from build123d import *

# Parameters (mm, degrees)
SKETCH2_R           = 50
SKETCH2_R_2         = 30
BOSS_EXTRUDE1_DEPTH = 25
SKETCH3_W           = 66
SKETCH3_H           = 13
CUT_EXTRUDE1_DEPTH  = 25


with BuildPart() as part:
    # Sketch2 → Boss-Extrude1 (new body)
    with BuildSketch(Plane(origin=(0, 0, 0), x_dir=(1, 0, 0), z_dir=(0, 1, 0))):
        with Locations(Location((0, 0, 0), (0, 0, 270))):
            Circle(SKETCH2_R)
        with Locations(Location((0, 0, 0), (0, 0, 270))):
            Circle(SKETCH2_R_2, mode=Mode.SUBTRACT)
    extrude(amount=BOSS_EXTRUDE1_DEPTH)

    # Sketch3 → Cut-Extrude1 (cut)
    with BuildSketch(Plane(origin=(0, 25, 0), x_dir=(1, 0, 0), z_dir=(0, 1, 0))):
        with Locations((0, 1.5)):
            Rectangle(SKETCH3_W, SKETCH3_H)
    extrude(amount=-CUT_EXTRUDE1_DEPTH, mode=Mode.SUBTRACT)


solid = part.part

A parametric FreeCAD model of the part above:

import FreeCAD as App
import Part
import Sketcher


def add_polygon(sketch, points):
    """Adds a closed chain of lines whose ends are joined by coincident constraints."""
    first, n = sketch.GeometryCount, len(points)
    for a, b in zip(points, points[1:] + points[:1]):
        sketch.addGeometry(Part.LineSegment(App.Vector(*a, 0), App.Vector(*b, 0)), False)
    for i in range(n):
        sketch.addConstraint(Sketcher.Constraint("Coincident", first + i, 2, first + (i + 1) % n, 1))

doc = App.newDocument("Part")
body = doc.addObject("PartDesign::Body", "Body")

sketch1 = body.newObject("Sketcher::SketchObject", "Sketch")
sketch1.AttachmentSupport = (doc.getObject("XZ_Plane"), [""])
sketch1.MapMode = "FlatFace"
sketch1.addGeometry(Part.Circle(App.Vector(0, 0, 0), App.Vector(0, 0, 1), 50), False)
sketch1.addGeometry(Part.Circle(App.Vector(0, 0, 0), App.Vector(0, 0, 1), 30), False)
sketch1.addConstraint(Sketcher.Constraint("Coincident", 0, 3, -1, 1))
sketch1.addConstraint(Sketcher.Constraint("Coincident", 1, 3, -1, 1))
sketch1.addConstraint(Sketcher.Constraint("Diameter", 0, 100.0))
sketch1.addConstraint(Sketcher.Constraint("Diameter", 1, 60.0))
pad1 = body.newObject("PartDesign::Pad", "Pad")
pad1.Profile = sketch1
pad1.Length = 25
pad1.Reversed = True

sketch2 = body.newObject("Sketcher::SketchObject", "Sketch001")
sketch2.AttachmentSupport = (doc.getObject("XZ_Plane"), [""])
sketch2.MapMode = "FlatFace"
sketch2.AttachmentOffset = App.Placement(App.Vector(0, 0, -25), App.Rotation())
add_polygon(sketch2, [(-33, -8), (-33, 5), (33, 5), (33, -8)])
sketch2.addConstraint(Sketcher.Constraint("Vertical", 0))
sketch2.addConstraint(Sketcher.Constraint("Horizontal", 1))
sketch2.addConstraint(Sketcher.Constraint("Vertical", 2))
sketch2.addConstraint(Sketcher.Constraint("Horizontal", 3))
sketch2.addConstraint(Sketcher.Constraint("DistanceX", 1, 1, 1, 2, 66.0))
sketch2.addConstraint(Sketcher.Constraint("DistanceY", 0, 1, 0, 2, 13.0))
sketch2.addConstraint(Sketcher.Constraint("DistanceX", 0, 2, -1, 1, 33.0))
sketch2.addConstraint(Sketcher.Constraint("DistanceY", -1, 1, 0, 2, 5.0))
pocket1 = body.newObject("PartDesign::Pocket", "Pocket")
pocket1.Profile = sketch2
pocket1.Length = 25
pocket1.Reversed = True

doc.recompute()
